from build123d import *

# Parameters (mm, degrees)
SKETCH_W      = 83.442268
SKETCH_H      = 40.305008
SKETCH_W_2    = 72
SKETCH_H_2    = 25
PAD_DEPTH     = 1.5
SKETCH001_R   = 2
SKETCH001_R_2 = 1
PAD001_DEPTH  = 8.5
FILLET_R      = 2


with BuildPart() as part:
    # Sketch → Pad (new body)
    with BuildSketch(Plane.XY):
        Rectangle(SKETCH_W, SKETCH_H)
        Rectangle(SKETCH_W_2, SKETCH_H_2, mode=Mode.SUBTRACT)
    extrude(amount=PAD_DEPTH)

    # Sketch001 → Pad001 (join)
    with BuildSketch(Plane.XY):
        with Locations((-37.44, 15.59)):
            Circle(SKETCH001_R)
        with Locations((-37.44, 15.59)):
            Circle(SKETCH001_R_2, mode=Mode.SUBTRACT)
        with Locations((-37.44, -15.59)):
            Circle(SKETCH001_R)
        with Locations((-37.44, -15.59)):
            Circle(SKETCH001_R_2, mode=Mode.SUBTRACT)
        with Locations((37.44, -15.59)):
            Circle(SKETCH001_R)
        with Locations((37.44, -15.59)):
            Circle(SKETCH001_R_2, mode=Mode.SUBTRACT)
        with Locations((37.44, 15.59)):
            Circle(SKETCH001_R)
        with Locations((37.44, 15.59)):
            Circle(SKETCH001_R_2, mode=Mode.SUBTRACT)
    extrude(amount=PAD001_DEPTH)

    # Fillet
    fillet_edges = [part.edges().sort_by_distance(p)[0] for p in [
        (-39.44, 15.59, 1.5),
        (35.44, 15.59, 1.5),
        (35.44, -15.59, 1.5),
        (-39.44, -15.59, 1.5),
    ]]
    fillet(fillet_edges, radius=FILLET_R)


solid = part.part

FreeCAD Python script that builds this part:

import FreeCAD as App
import Part
import Sketcher
from FreeCAD import Vector
Q = App.Units.Quantity


def edges_at(feature, points):
    """Names of the edges that pass closest to the given points."""
    edges = feature.Shape.Edges
    near = lambda p: min(range(len(edges)), key=lambda i: edges[i].distToShape(Part.Vertex(*p))[0])
    return sorted({f"Edge{near(p) + 1}" for p in points})


def add_polygon(sketch, points):
    """Adds a closed chain of lines whose ends are joined by coincident constraints."""
    first, n = sketch.GeometryCount, len(points)
    for a, b in zip(points, points[1:] + points[:1]):
        sketch.addGeometry(Part.LineSegment(App.Vector(*a, 0), App.Vector(*b, 0)), False)
    for i in range(n):
        sketch.addConstraint(Sketcher.Constraint("Coincident", first + i, 2, first + (i + 1) % n, 1))

doc = App.newDocument("Part")
params = doc.addObject("Spreadsheet::Sheet", "Params")
for row, (alias, value) in enumerate([
    ("sketch1_width", "72 mm"),
    ("sketch1_height", "25 mm"),
    ("pad1_length", "1.5 mm"),
    ("sketch2_diameter", "4 mm"),
    ("sketch2_diameter2", "2 mm"),
    ("pad2_length", "8.5 mm"),
    ("fillet_radius", "2 mm"),
], start=1):
    params.set(f"A{row}", alias)
    params.set(f"B{row}", "=" + value)
    params.setAlias(f"B{row}", alias)

body = doc.addObject("PartDesign::Body", "Body")

sketch1 = body.newObject("Sketcher::SketchObject", "Sketch")
sketch1.AttachmentSupport = (doc.getObject("XY_Plane"), [""])
sketch1.MapMode = "FlatFace"
add_polygon(sketch1, [(-42, 20), (-42, -20), (42, -20), (42, 20)])
add_polygon(sketch1, [(36, -12), (-36, -12), (-36, 12), (36, 12)])
sketch1.addConstraint([
    Sketcher.Constraint("Vertical", 0),
    Sketcher.Constraint("Horizontal", 1),
    Sketcher.Constraint("Vertical", 2),
    Sketcher.Constraint("Horizontal", 3),
    Sketcher.Constraint("Horizontal", 4),
    Sketcher.Constraint("Vertical", 5),
    Sketcher.Constraint("Horizontal", 6),
    Sketcher.Constraint("Vertical", 7),
    Sketcher.Constraint("Symmetric", 0, 2, 2, 2, -1, 1),
    Sketcher.Constraint("Symmetric", 4, 2, 6, 2, -1, 1),
    Sketcher.Constraint("DistanceX", 4, 2, 4, 1, Q("72 mm")),
    Sketcher.Constraint("DistanceY", 5, 1, 5, 2, Q("25 mm")),
    Sketcher.Constraint("DistanceX", 1, 1, 1, 2, Q("83.442268 mm")),
    Sketcher.Constraint("DistanceY", 0, 2, 0, 1, Q("40.305008 mm")),
])
sketch1.setExpression("Constraints[18]", "Params.sketch1_width")
sketch1.setExpression("Constraints[19]", "Params.sketch1_height")
pad1 = body.newObject("PartDesign::Pad", "Pad")
pad1.Profile = sketch1
pad1.setExpression("Length", "Params.pad1_length")

sketch2 = body.newObject("Sketcher::SketchObject", "Sketch001")
sketch2.AttachmentSupport = (doc.getObject("XY_Plane"), [""])
sketch2.MapMode = "FlatFace"
sketch2.addGeometry([
    Part.Circle(Vector(-37.4, 15.6, 0), Vector(0, 0, 1), 2),
    Part.Circle(Vector(-37.4, 15.6, 0), Vector(0, 0, 1), 1),
    Part.Circle(Vector(-37.4, -15.6, 0), Vector(0, 0, 1), 2),
    Part.Circle(Vector(-37.4, -15.6, 0), Vector(0, 0, 1), 1),
    Part.Circle(Vector(37.4, -15.6, 0), Vector(0, 0, 1), 2),
    Part.Circle(Vector(37.4, -15.6, 0), Vector(0, 0, 1), 1),
    Part.Circle(Vector(37.4, 15.6, 0), Vector(0, 0, 1), 2),
    Part.Circle(Vector(37.4, 15.6, 0), Vector(0, 0, 1), 1),
], False)
sketch2.addConstraint([
    Sketcher.Constraint("Coincident", 1, 3, 0, 3),
    Sketcher.Constraint("Coincident", 3, 3, 2, 3),
    Sketcher.Constraint("Coincident", 5, 3, 4, 3),
    Sketcher.Constraint("Coincident", 7, 3, 6, 3),
    Sketcher.Constraint("Equal", 0, 2),
    Sketcher.Constraint("Equal", 1, 3),
    Sketcher.Constraint("Equal", 2, 4),
    Sketcher.Constraint("Equal", 3, 5),
    Sketcher.Constraint("Equal", 4, 6),
    Sketcher.Constraint("Equal", 5, 7),
    Sketcher.Constraint("Symmetric", 0, 3, 4, 3, -1, 1),
    Sketcher.Constraint("Symmetric", 2, 3, 6, 3, -1, 1),
    Sketcher.Constraint("Symmetric", 2, 3, 4, 3, -2),
    Sketcher.Constraint("Diameter", 0, Q("4 mm")),
    Sketcher.Constraint("Diameter", 1, Q("2 mm")),
    Sketcher.Constraint("DistanceX", 0, 3, -1, 1, Q("37.44 mm")),
    Sketcher.Constraint("DistanceY", -1, 1, 0, 3, Q("15.59 mm")),
])
sketch2.setExpression("Constraints[13]", "Params.sketch2_diameter")
sketch2.setExpression("Constraints[14]", "Params.sketch2_diameter2")
pad2 = body.newObject("PartDesign::Pad", "Pad001")
pad2.Profile = sketch2
pad2.setExpression("Length", "Params.pad2_length")
doc.recompute()

fillet = body.newObject("PartDesign::Fillet", "Fillet")
fillet.Base = (pad2, edges_at(pad2, [
    (-39.44, 15.59, 1.5),
    (35.44, 15.59, 1.5),
    (35.44, -15.59, 1.5),
    (-39.44, -15.59, 1.5),
]))
fillet.setExpression("Radius", "Params.fillet_radius")

doc.recompute()
